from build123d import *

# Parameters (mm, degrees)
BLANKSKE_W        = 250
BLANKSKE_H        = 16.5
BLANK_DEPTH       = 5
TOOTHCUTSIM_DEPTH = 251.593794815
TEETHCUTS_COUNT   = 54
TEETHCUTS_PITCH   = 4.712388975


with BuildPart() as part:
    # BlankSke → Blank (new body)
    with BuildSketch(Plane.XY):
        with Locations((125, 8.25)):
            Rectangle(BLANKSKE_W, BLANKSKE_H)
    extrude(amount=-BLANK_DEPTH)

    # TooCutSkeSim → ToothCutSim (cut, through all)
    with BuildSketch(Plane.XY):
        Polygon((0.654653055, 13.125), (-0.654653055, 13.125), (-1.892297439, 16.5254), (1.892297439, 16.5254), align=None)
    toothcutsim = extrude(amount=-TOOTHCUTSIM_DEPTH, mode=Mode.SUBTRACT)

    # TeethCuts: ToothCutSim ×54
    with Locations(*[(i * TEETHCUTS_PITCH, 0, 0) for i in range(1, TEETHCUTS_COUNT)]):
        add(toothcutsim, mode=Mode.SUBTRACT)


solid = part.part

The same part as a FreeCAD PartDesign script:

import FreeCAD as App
import Part
import Sketcher
from FreeCAD import Vector
Q = App.Units.Quantity


def add_polygon(sketch, points):
    """Adds a closed chain of lines whose ends are joined by coincident constraints."""
    first, n = sketch.GeometryCount, len(points)
    for a, b in zip(points, points[1:] + points[:1]):
        sketch.addGeometry(Part.LineSegment(App.Vector(*a, 0), App.Vector(*b, 0)), False)
    for i in range(n):
        sketch.addConstraint(Sketcher.Constraint("Coincident", first + i, 2, first + (i + 1) % n, 1))

doc = App.newDocument("Part")
params = doc.addObject("Spreadsheet::Sheet", "Params")
for row, (alias, value) in enumerate([
    ("sketch1_width", "250 mm"),
    ("sketch1_height", "16.5 mm"),
    ("pad1_length", "5 mm"),
    ("linearpattern_pitch", "4.712389 mm"),
], start=1):
    params.set(f"A{row}", alias)
    params.set(f"B{row}", "=" + value)
    params.setAlias(f"B{row}", alias)

body = doc.addObject("PartDesign::Body", "Body")

# Sketch on XY plane
sketch1 = body.newObject("Sketcher::SketchObject", "Sketch")
sketch1.AttachmentSupport = (doc.getObject("XY_Plane"), [""])
sketch1.MapMode = "FlatFace"
add_polygon(sketch1, [(0, 16.5), (0, 0), (250, 0), (250, 16.5)])  # lines 0-3
sketch1.addConstraint(Sketcher.Constraint("Vertical", 0))
sketch1.addConstraint(Sketcher.Constraint("Horizontal", 1))
sketch1.addConstraint(Sketcher.Constraint("Vertical", 2))
sketch1.addConstraint(Sketcher.Constraint("Horizontal", 3))
sketch1.addConstraint(Sketcher.Constraint("Coincident", 0, 2, -1, 1))
sketch1.addConstraint(Sketcher.Constraint("DistanceX", 1, 1, 1, 2, 250.0))
sketch1.addConstraint(Sketcher.Constraint("DistanceY", 0, 2, 0, 1, 16.5))
sketch1.setExpression("Constraints[9]", "Params.sketch1_width")
sketch1.setExpression("Constraints[10]", "Params.sketch1_height")
pad1 = body.newObject("PartDesign::Pad", "Pad")
pad1.Profile = sketch1
pad1.setExpression("Length", "Params.pad1_length")
pad1.Reversed = True

# Sketch on XY plane
sketch2 = body.newObject("Sketcher::SketchObject", "Sketch001")
sketch2.AttachmentSupport = (doc.getObject("XY_Plane"), [""])
sketch2.MapMode = "FlatFace"
add_polygon(sketch2, [(-0.654653, 13.125), (0.654653, 13.125), (1.892297, 16.5254), (-1.892297, 16.5254)])  # lines 0-3
sketch2.addConstraint(Sketcher.Constraint("Horizontal", 0))
sketch2.addConstraint(Sketcher.Constraint("Horizontal", 2))
sketch2.addConstraint(Sketcher.Constraint("Equal", 1, 3))
sketch2.addConstraint(Sketcher.Constraint("Angle", 1, Q("70 deg")))
sketch2.addConstraint(Sketcher.Constraint("DistanceY", -1, 1, 0, 2, 13.125))
sketch2.addConstraint(Sketcher.Constraint("DistanceY", -1, 1, 1, 2, 16.5254))
sketch2.addConstraint(Sketcher.Constraint("DistanceX", 0, 1, 0, 2, 1.309306))
sketch2.addConstraint(Sketcher.Constraint("DistanceX", -1, 1, 0, 2, 0.654653))
pocket1 = body.newObject("PartDesign::Pocket", "Pocket")
pocket1.Profile = sketch2
pocket1.Type = "ThroughAll"
doc.recompute()

linearpattern = body.newObject("PartDesign::LinearPattern", "LinearPattern")
linearpattern.Originals = [pocket1]
linearpattern.Direction = (doc.getObject("X_Axis"), [""])
linearpattern.Mode = "offset"
linearpattern.setExpression("Offset", "Params.linearpattern_pitch")
linearpattern.Occurrences = 54
body.Tip = linearpattern

doc.recompute()
